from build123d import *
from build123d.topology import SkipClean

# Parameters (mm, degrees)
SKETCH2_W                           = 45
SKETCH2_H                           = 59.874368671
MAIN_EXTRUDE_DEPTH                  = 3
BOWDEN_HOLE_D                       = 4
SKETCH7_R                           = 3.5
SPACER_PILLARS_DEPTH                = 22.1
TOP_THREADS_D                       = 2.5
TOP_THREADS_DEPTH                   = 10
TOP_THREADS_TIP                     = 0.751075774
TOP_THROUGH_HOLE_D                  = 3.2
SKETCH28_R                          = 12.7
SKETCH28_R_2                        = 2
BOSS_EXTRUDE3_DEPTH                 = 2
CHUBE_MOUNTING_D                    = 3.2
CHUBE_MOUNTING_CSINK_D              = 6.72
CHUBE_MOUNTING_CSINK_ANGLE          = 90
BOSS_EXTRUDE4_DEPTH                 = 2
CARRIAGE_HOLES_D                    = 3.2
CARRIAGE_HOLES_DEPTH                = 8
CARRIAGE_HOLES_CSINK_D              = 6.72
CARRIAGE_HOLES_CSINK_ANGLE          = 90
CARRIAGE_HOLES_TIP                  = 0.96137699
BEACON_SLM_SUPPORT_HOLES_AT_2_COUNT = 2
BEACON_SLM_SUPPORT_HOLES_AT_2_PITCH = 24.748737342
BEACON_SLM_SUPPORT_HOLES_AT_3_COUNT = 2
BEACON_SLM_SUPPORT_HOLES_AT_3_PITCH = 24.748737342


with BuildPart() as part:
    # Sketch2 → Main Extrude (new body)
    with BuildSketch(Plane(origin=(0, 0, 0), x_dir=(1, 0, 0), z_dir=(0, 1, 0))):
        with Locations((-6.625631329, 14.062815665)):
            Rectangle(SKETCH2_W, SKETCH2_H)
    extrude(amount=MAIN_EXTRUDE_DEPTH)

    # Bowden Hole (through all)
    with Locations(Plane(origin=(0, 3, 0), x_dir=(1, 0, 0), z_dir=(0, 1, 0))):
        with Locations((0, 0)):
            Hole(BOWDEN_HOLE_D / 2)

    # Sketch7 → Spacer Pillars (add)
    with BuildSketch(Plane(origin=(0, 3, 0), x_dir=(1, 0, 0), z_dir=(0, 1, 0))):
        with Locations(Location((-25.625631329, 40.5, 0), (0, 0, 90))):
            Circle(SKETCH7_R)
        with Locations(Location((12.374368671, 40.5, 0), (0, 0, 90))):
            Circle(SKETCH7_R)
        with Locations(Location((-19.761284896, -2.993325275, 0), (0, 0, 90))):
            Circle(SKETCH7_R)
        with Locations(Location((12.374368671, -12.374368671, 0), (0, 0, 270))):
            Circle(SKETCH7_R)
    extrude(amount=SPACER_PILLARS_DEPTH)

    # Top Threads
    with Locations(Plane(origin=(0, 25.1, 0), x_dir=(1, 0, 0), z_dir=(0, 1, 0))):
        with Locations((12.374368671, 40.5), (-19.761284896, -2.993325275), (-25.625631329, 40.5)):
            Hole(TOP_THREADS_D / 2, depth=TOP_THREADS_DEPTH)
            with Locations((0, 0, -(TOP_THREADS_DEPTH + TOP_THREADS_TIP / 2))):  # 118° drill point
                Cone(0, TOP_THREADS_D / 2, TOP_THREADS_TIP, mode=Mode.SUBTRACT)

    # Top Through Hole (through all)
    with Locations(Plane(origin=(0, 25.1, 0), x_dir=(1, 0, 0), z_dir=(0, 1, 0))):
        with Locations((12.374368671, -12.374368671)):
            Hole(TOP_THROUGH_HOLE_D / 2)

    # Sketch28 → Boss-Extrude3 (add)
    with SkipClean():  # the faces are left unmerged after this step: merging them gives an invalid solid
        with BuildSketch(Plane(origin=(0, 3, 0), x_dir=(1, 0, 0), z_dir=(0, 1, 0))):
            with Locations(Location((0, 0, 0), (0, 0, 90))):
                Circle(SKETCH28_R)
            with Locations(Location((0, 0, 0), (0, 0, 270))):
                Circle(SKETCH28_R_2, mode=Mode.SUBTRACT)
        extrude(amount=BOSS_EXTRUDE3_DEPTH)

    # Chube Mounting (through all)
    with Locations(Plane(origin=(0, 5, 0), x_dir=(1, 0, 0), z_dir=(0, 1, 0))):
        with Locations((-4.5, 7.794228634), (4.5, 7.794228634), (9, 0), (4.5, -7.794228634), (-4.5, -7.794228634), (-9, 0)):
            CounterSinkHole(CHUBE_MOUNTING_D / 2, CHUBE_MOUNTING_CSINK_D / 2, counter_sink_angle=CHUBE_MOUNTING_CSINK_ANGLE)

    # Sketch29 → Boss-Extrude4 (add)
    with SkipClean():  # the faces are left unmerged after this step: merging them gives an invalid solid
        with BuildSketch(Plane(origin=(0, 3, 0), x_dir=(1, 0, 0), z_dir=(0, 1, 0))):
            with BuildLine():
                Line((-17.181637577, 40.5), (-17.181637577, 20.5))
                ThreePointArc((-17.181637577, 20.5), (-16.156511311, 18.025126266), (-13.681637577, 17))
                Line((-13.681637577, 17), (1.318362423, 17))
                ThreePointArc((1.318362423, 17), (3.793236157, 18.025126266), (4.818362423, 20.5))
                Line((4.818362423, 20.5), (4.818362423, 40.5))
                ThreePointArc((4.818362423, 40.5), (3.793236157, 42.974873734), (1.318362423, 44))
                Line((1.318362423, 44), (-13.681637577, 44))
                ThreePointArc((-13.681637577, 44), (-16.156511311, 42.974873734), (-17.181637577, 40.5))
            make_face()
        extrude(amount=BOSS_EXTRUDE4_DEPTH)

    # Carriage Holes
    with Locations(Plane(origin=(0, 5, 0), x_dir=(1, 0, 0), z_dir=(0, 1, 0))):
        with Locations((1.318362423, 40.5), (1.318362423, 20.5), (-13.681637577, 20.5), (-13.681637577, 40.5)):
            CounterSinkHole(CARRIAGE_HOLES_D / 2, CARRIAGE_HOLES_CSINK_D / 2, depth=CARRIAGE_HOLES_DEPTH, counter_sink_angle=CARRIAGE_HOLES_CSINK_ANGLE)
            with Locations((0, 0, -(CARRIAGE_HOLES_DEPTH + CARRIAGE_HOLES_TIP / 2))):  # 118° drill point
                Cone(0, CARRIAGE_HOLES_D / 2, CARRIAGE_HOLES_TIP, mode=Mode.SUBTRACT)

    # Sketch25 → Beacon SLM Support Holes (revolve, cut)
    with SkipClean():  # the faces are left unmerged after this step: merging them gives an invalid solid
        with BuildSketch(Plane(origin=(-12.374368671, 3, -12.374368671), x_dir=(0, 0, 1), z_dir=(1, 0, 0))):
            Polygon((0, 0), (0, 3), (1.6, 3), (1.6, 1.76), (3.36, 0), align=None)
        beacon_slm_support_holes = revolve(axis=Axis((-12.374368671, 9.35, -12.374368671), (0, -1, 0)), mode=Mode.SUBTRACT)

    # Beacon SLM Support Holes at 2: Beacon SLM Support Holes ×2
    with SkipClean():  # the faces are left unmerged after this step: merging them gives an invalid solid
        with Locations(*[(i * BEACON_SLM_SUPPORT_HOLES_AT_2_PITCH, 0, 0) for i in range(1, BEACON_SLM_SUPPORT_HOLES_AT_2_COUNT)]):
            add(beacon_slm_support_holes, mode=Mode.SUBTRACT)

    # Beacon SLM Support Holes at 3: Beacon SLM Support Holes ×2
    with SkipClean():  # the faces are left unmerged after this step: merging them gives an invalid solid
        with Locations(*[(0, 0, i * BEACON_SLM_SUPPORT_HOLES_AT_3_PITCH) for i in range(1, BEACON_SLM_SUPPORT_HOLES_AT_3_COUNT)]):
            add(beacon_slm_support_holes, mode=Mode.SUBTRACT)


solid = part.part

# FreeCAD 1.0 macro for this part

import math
import FreeCAD as App
import Part
import Sketcher
from FreeCAD import Vector
Q = App.Units.Quantity


def add_polygon(sketch, points):
    """Adds a closed chain of lines whose ends are joined by coincident constraints."""
    first, n = sketch.GeometryCount, len(points)
    for a, b in zip(points, points[1:] + points[:1]):
        sketch.addGeometry(Part.LineSegment(App.Vector(*a, 0), App.Vector(*b, 0)), False)
    for i in range(n):
        sketch.addConstraint(Sketcher.Constraint("Coincident", first + i, 2, first + (i + 1) % n, 1))

doc = App.newDocument("Part")
params = doc.addObject("Spreadsheet::Sheet", "Params")
for row, (alias, value) in enumerate([
    ("sketch1_width", "45 mm"),
    ("pad1_length", "3 mm"),
    ("sketch2_diameter", "4 mm"),
    ("hole_diameter", "4 mm"),
    ("sketch3_diameter", "7 mm"),
    ("pad2_length", "22.1 mm"),
    ("sketch4_diameter", "2.5 mm"),
    ("hole2_diameter", "2.5 mm"),
    ("hole2_depth", "10 mm"),
    ("sketch5_diameter", "3.2 mm"),
    ("hole3_diameter", "3.2 mm"),
    ("sketch6_diameter", "4 mm"),
    ("sketch6_diameter2", "25.4 mm"),
    ("pad3_length", "2 mm"),
    ("sketch7_diameter", "3.2 mm"),
    ("hole4_diameter", "3.2 mm"),
    ("hole4_csink_diameter", "6.72 mm"),
    ("sketch8_radius", "3.5 mm"),
    ("sketch8_width", "15 mm"),
    ("sketch8_height", "20 mm"),
    ("pad4_length", "2 mm"),
    ("sketch9_diameter", "3.2 mm"),
    ("hole5_diameter", "3.2 mm"),
    ("hole5_depth", "8 mm"),
    ("hole5_csink_diameter", "6.72 mm"),
    ("sketch10_width", "3 mm"),
    ("sketch10_height", "1.6 mm"),
    ("sketch10_width2", "1.24 mm"),
    ("groove_angle", "360 deg"),
    ("linearpattern_pitch", "24.748737 mm"),
    ("linearpattern2_pitch", "24.748737 mm"),
], start=1):
    params.set(f"A{row}", alias)
    params.set(f"B{row}", "=" + value)
    params.setAlias(f"B{row}", alias)

body = doc.addObject("PartDesign::Body", "Body")

sketch1 = doc.addObject("Sketcher::SketchObject", "Sketch")
body.addObject(sketch1)
sketch1.AttachmentSupport = (doc.XZ_Plane, [""])
sketch1.MapMode = "FlatFace"
add_polygon(sketch1, [(-29, -44), (-29, 16), (16, 16), (16, -44)])
sketch1.addConstraint([
    Sketcher.Constraint("Vertical", 0),
    Sketcher.Constraint("Horizontal", 1),
    Sketcher.Constraint("Vertical", 2),
    Sketcher.Constraint("Horizontal", 3),
    Sketcher.Constraint("DistanceX", 1, 1, 1, 2, Q("45 mm")),
    Sketcher.Constraint("DistanceY", 2, 2, -1, 1, Q("44 mm")),
    Sketcher.Constraint("DistanceY", 0, 1, 0, 2, Q("59.874369 mm")),
    Sketcher.Constraint("DistanceX", 0, 2, -1, 1, Q("29.125631 mm")),
])
sketch1.setExpression("Constraints[8]", "Params.sketch1_width")
pad1 = doc.addObject("PartDesign::Pad", "Pad")
body.addObject(pad1)
pad1.Profile = sketch1
pad1.setExpression("Length", "Params.pad1_length")
pad1.Reversed = True

sketch2 = doc.addObject("Sketcher::SketchObject", "Sketch001")
body.addObject(sketch2)
sketch2.AttachmentSupport = (doc.XZ_Plane, [""])
sketch2.MapMode = "FlatFace"
sketch2.AttachmentOffset = App.Placement(Vector(0, 0, -3), App.Rotation())
sketch2.addGeometry(Part.Circle(Vector(0, 0, 0), Vector(0, 0, 1), 2), False)
sketch2.addConstraint([
    Sketcher.Constraint("Coincident", 0, 3, -1, 1),
    Sketcher.Constraint("Diameter", 0, Q("4 mm")),
])
sketch2.setExpression("Constraints[1]", "Params.sketch2_diameter")
doc.recompute()
hole = doc.addObject("PartDesign::Hole", "Hole")
body.addObject(hole)
hole.Profile = sketch2
hole.ThreadType = "None"
hole.setExpression("Diameter", "Params.hole_diameter")
hole.DepthType = "ThroughAll"
hole.Reversed = True

sketch3 = doc.addObject("Sketcher::SketchObject", "Sketch002")
body.addObject(sketch3)
sketch3.AttachmentSupport = (doc.XZ_Plane, [""])
sketch3.MapMode = "FlatFace"
sketch3.AttachmentOffset = App.Placement(Vector(0, 0, -3), App.Rotation())
sketch3.addGeometry([
    Part.Circle(Vector(-25.6, -40.5, 0), Vector(0, 0, 1), 3.5),
    Part.Circle(Vector(12.4, -40.5, 0), Vector(0, 0, 1), 3.5),
    Part.Circle(Vector(-19.8, 3, 0), Vector(0, 0, 1), 3.5),
    Part.Circle(Vector(12.4, 12.4, 0), Vector(0, 0, 1), 3.5),
], False)
sketch3.addConstraint([
    Sketcher.Constraint("Equal", 0, 1),
    Sketcher.Constraint("Equal", 1, 2),
    Sketcher.Constraint("Equal", 2, 3),
    Sketcher.Constraint("Horizontal", 0, 3, 1, 3),
    Sketcher.Constraint("Vertical", 1, 3, 3, 3),
    Sketcher.Constraint("Diameter", 0, Q("7 mm")),
    Sketcher.Constraint("DistanceX", 0, 3, 1, 3, Q("38 mm")),
    Sketcher.Constraint("DistanceY", 0, 3, -1, 1, Q("40.5 mm")),
    Sketcher.Constraint("DistanceX", 0, 3, -1, 1, Q("25.625631 mm")),
    Sketcher.Constraint("DistanceY", -1, 1, 3, 3, Q("12.374369 mm")),
    Sketcher.Constraint("DistanceX", 2, 3, -1, 1, Q("19.761285 mm")),
    Sketcher.Constraint("DistanceY", -1, 1, 2, 3, Q("2.993325 mm")),
])
sketch3.setExpression("Constraints[5]", "Params.sketch3_diameter")
pad2 = doc.addObject("PartDesign::Pad", "Pad001")
body.addObject(pad2)
pad2.Profile = sketch3
pad2.setExpression("Length", "Params.pad2_length")
pad2.Reversed = True

sketch4 = doc.addObject("Sketcher::SketchObject", "Sketch003")
body.addObject(sketch4)
sketch4.AttachmentSupport = (doc.XZ_Plane, [""])
sketch4.MapMode = "FlatFace"
sketch4.AttachmentOffset = App.Placement(Vector(0, 0, -25.1), App.Rotation())
sketch4.addGeometry([
    Part.Circle(Vector(12.4, -40.5, 0), Vector(0, 0, 1), 1.2),
    Part.Circle(Vector(-19.8, 3, 0), Vector(0, 0, 1), 1.2),
    Part.Circle(Vector(-25.6, -40.5, 0), Vector(0, 0, 1), 1.2),
], False)
sketch4.addConstraint([
    Sketcher.Constraint("Equal", 0, 1),
    Sketcher.Constraint("Equal", 1, 2),
    Sketcher.Constraint("Horizontal", 0, 3, 2, 3),
    Sketcher.Constraint("Diameter", 0, Q("2.5 mm")),
    Sketcher.Constraint("DistanceX", 2, 3, 0, 3, Q("38 mm")),
    Sketcher.Constraint("DistanceY", 0, 3, -1, 1, Q("40.5 mm")),
    Sketcher.Constraint("DistanceX", -1, 1, 0, 3, Q("12.374369 mm")),
    Sketcher.Constraint("DistanceX", 1, 3, -1, 1, Q("19.761285 mm")),
    Sketcher.Constraint("DistanceY", -1, 1, 1, 3, Q("2.993325 mm")),
])
sketch4.setExpression("Constraints[3]", "Params.sketch4_diameter")
doc.recompute()
hole2 = doc.addObject("PartDesign::Hole", "Hole001")
body.addObject(hole2)
hole2.Profile = sketch4
hole2.ThreadType = "None"
hole2.setExpression("Diameter", "Params.hole2_diameter")
hole2.DepthType = "Dimension"
hole2.setExpression("Depth", "Params.hole2_depth")
hole2.DrillPoint = "Angled"
hole2.DrillPointAngle = 118
hole2.Reversed = True

sketch5 = doc.addObject("Sketcher::SketchObject", "Sketch004")
body.addObject(sketch5)
sketch5.AttachmentSupport = (doc.XZ_Plane, [""])
sketch5.MapMode = "FlatFace"
sketch5.AttachmentOffset = App.Placement(Vector(0, 0, -25.1), App.Rotation())
sketch5.addGeometry(Part.Circle(Vector(12.4, 12.4, 0), Vector(0, 0, 1), 1.6), False)
sketch5.addConstraint([
    Sketcher.Constraint("Diameter", 0, Q("3.2 mm")),
    Sketcher.Constraint("DistanceX", -1, 1, 0, 3, Q("12.374369 mm")),
    Sketcher.Constraint("DistanceY", -1, 1, 0, 3, Q("12.374369 mm")),
])
sketch5.setExpression("Constraints[0]", "Params.sketch5_diameter")
doc.recompute()
hole3 = doc.addObject("PartDesign::Hole", "Hole002")
body.addObject(hole3)
hole3.Profile = sketch5
hole3.ThreadType = "None"
hole3.setExpression("Diameter", "Params.hole3_diameter")
hole3.DepthType = "ThroughAll"
hole3.Reversed = True

sketch6 = doc.addObject("Sketcher::SketchObject", "Sketch005")
body.addObject(sketch6)
sketch6.AttachmentSupport = (doc.XZ_Plane, [""])
sketch6.MapMode = "FlatFace"
sketch6.AttachmentOffset = App.Placement(Vector(0, 0, -3), App.Rotation())
sketch6.addGeometry([
    Part.Circle(Vector(0, 0, 0), Vector(0, 0, 1), 12.7),
    Part.Circle(Vector(0, 0, 0), Vector(0, 0, 1), 2),
], False)
sketch6.addConstraint([
    Sketcher.Constraint("Coincident", 0, 3, -1, 1),
    Sketcher.Constraint("Coincident", 1, 3, -1, 1),
    Sketcher.Constraint("Diameter", 1, Q("4 mm")),
    Sketcher.Constraint("Diameter", 0, Q("25.4 mm")),
])
sketch6.setExpression("Constraints[2]", "Params.sketch6_diameter")
sketch6.setExpression("Constraints[3]", "Params.sketch6_diameter2")
pad3 = doc.addObject("PartDesign::Pad", "Pad002")
body.addObject(pad3)
pad3.Profile = sketch6
pad3.setExpression("Length", "Params.pad3_length")
pad3.Reversed = True

sketch7 = doc.addObject("Sketcher::SketchObject", "Sketch006")
body.addObject(sketch7)
sketch7.AttachmentSupport = (doc.XZ_Plane, [""])
sketch7.MapMode = "FlatFace"
sketch7.AttachmentOffset = App.Placement(Vector(0, 0, -5), App.Rotation())
sketch7.addGeometry([
    Part.Circle(Vector(-4.5, -7.8, 0), Vector(0, 0, 1), 1.6),
    Part.Circle(Vector(4.5, -7.8, 0), Vector(0, 0, 1), 1.6),
    Part.Circle(Vector(9, 0, 0), Vector(0, 0, 1), 1.6),
    Part.Circle(Vector(4.5, 7.8, 0), Vector(0, 0, 1), 1.6),
    Part.Circle(Vector(-4.5, 7.8, 0), Vector(0, 0, 1), 1.6),
    Part.Circle(Vector(-9, 0, 0), Vector(0, 0, 1), 1.6),
], False)
sketch7.addConstraint([
    Sketcher.Constraint("Equal", 0, 1),
    Sketcher.Constraint("Equal", 1, 2),
    Sketcher.Constraint("Equal", 2, 3),
    Sketcher.Constraint("Equal", 3, 4),
    Sketcher.Constraint("Equal", 4, 5),
    Sketcher.Constraint("Symmetric", 0, 3, 3, 3, -1, 1),
    Sketcher.Constraint("Symmetric", 1, 3, 4, 3, -1, 1),
    Sketcher.Constraint("Symmetric", 2, 3, 5, 3, -1, 1),
    Sketcher.Constraint("Symmetric", 0, 3, 1, 3, -2),
    Sketcher.Constraint("PointOnObject", 2, 3, -1),
    Sketcher.Constraint("Diameter", 0, Q("3.2 mm")),
    Sketcher.Constraint("DistanceX", -1, 1, 2, 3, Q("9 mm")),
    Sketcher.Constraint("DistanceX", 0, 3, 1, 3, Q("9 mm")),
    Sketcher.Constraint("DistanceY", 0, 3, -1, 1, Q("7.794229 mm")),
])
sketch7.setExpression("Constraints[10]", "Params.sketch7_diameter")
doc.recompute()
hole4 = doc.addObject("PartDesign::Hole", "Hole003")
body.addObject(hole4)
hole4.Profile = sketch7
hole4.ThreadType = "None"
hole4.setExpression("Diameter", "Params.hole4_diameter")
hole4.DepthType = "ThroughAll"
hole4.HoleCutType = "Countersink"
hole4.setExpression("HoleCutDiameter", "Params.hole4_csink_diameter")
hole4.HoleCutCountersinkAngle = 90
hole4.Reversed = True

sketch8 = doc.addObject("Sketcher::SketchObject", "Sketch007")
body.addObject(sketch8)
sketch8.AttachmentSupport = (doc.XZ_Plane, [""])
sketch8.MapMode = "FlatFace"
sketch8.AttachmentOffset = App.Placement(Vector(0, 0, -3), App.Rotation())
sketch8.addGeometry([
    Part.LineSegment(Vector(-17.2, -40.5, 0), Vector(-17.2, -20.5, 0)),
    Part.ArcOfCircle(Part.Circle(Vector(-13.7, -20.5, 0), Vector(0, 0, 1), 3.5), math.radians(90), math.radians(180)),
    Part.LineSegment(Vector(-13.7, -17, 0), Vector(1.3, -17, 0)),
    Part.ArcOfCircle(Part.Circle(Vector(1.3, -20.5, 0), Vector(0, 0, 1), 3.5), math.radians(0), math.radians(90)),
    Part.LineSegment(Vector(4.8, -20.5, 0), Vector(4.8, -40.5, 0)),
    Part.ArcOfCircle(Part.Circle(Vector(1.3, -40.5, 0), Vector(0, 0, 1), 3.5), math.radians(-90), math.radians(0)),
    Part.LineSegment(Vector(1.3, -44, 0), Vector(-13.7, -44, 0)),
    Part.ArcOfCircle(Part.Circle(Vector(-13.7, -40.5, 0), Vector(0, 0, 1), 3.5), math.radians(-180), math.radians(-90)),
], False)
sketch8.addConstraint([
    Sketcher.Constraint("Tangent", 0, 2, 1, 2),
    Sketcher.Constraint("Tangent", 1, 1, 2, 1),
    Sketcher.Constraint("Tangent", 2, 2, 3, 2),
    Sketcher.Constraint("Tangent", 3, 1, 4, 1),
    Sketcher.Constraint("Tangent", 4, 2, 5, 2),
    Sketcher.Constraint("Tangent", 5, 1, 6, 1),
    Sketcher.Constraint("Tangent", 6, 2, 7, 2),
    Sketcher.Constraint("Tangent", 7, 1, 0, 1),
    Sketcher.Constraint("Vertical", 0),
    Sketcher.Constraint("Horizontal", 2),
    Sketcher.Constraint("Vertical", 4),
    Sketcher.Constraint("Horizontal", 6),
    Sketcher.Constraint("Equal", 1, 3),
    Sketcher.Constraint("Equal", 3, 5),
    Sketcher.Constraint("Equal", 5, 7),
    Sketcher.Constraint("Radius", 1, Q("3.5 mm")),
    Sketcher.Constraint("DistanceX", 2, 1, 2, 2, Q("15 mm")),
    Sketcher.Constraint("DistanceY", 0, 1, 0, 2, Q("20 mm")),
    Sketcher.Constraint("DistanceY", 1, 1, -1, 1, Q("17 mm")),
    Sketcher.Constraint("DistanceX", 1, 3, -1, 1, Q("13.681638 mm")),
])
sketch8.setExpression("Constraints[15]", "Params.sketch8_radius")
sketch8.setExpression("Constraints[16]", "Params.sketch8_width")
sketch8.setExpression("Constraints[17]", "Params.sketch8_height")
pad4 = doc.addObject("PartDesign::Pad", "Pad003")
body.addObject(pad4)
pad4.Profile = sketch8
pad4.setExpression("Length", "Params.pad4_length")
pad4.Reversed = True

sketch9 = doc.addObject("Sketcher::SketchObject", "Sketch008")
body.addObject(sketch9)
sketch9.AttachmentSupport = (doc.XZ_Plane, [""])
sketch9.MapMode = "FlatFace"
sketch9.AttachmentOffset = App.Placement(Vector(0, 0, -5), App.Rotation())
sketch9.addGeometry([
    Part.Circle(Vector(1.3, -40.5, 0), Vector(0, 0, 1), 1.6),
    Part.Circle(Vector(1.3, -20.5, 0), Vector(0, 0, 1), 1.6),
    Part.Circle(Vector(-13.7, -20.5, 0), Vector(0, 0, 1), 1.6),
    Part.Circle(Vector(-13.7, -40.5, 0), Vector(0, 0, 1), 1.6),
], False)
sketch9.addConstraint([
    Sketcher.Constraint("Equal", 0, 1),
    Sketcher.Constraint("Equal", 1, 2),
    Sketcher.Constraint("Equal", 2, 3),
    Sketcher.Constraint("Horizontal", 1, 3, 2, 3),
    Sketcher.Constraint("Horizontal", 0, 3, 3, 3),
    Sketcher.Constraint("Vertical", 0, 3, 1, 3),
    Sketcher.Constraint("Vertical", 2, 3, 3, 3),
    Sketcher.Constraint("Diameter", 0, Q("3.2 mm")),
    Sketcher.Constraint("DistanceY", 0, 3, 1, 3, Q("20 mm")),
    Sketcher.Constraint("DistanceX", 2, 3, 1, 3, Q("15 mm")),
    Sketcher.Constraint("DistanceY", 0, 3, -1, 1, Q("40.5 mm")),
    Sketcher.Constraint("DistanceX", -1, 1, 0, 3, Q("1.318362 mm")),
])
sketch9.setExpression("Constraints[7]", "Params.sketch9_diameter")
doc.recompute()
hole5 = doc.addObject("PartDesign::Hole", "Hole004")
body.addObject(hole5)
hole5.Profile = sketch9
hole5.ThreadType = "None"
hole5.setExpression("Diameter", "Params.hole5_diameter")
hole5.DepthType = "Dimension"
hole5.setExpression("Depth", "Params.hole5_depth")
hole5.DrillPoint = "Angled"
hole5.DrillPointAngle = 118
hole5.HoleCutType = "Countersink"
hole5.setExpression("HoleCutDiameter", "Params.hole5_csink_diameter")
hole5.HoleCutCountersinkAngle = 90
hole5.Reversed = True

sketch10 = doc.addObject("Sketcher::SketchObject", "Sketch009")
body.addObject(sketch10)
sketch10.AttachmentSupport = (doc.YZ_Plane, [""])
sketch10.MapMode = "FlatFace"
sketch10.AttachmentOffset = App.Placement(Vector(0, 0, -12.374369), App.Rotation())
add_polygon(sketch10, [(0, -12.4), (3, -12.4), (3, -9), (1.2, -10.8), (0, -10.8)])
sketch10.addGeometry(Part.LineSegment(Vector(3, -12.4, 0), Vector(0, -12.4, 0)), True)
sketch10.addConstraint([
    Sketcher.Constraint("Horizontal", 0),
    Sketcher.Constraint("Vertical", 1),
    Sketcher.Constraint("Horizontal", 3),
    Sketcher.Constraint("Vertical", 4),
    Sketcher.Constraint("Horizontal", 5),
    Sketcher.Constraint("Coincident", 5, 1, 0, 2),
    Sketcher.Constraint("PointOnObject", 3, 2, -2),
    Sketcher.Constraint("PointOnObject", 5, 2, -2),
    Sketcher.Constraint("DistanceX", 0, 1, 0, 2, Q("3 mm")),
    Sketcher.Constraint("Angle", 2, Q("-135 deg")),
    Sketcher.Constraint("DistanceY", 4, 2, 4, 1, Q("1.6 mm")),
    Sketcher.Constraint("DistanceX", 3, 2, 3, 1, Q("1.24 mm")),
    Sketcher.Constraint("DistanceY", 0, 2, -1, 1, Q("12.374369 mm")),
])
sketch10.setExpression("Constraints[13]", "Params.sketch10_width")
sketch10.setExpression("Constraints[15]", "Params.sketch10_height")
sketch10.setExpression("Constraints[16]", "Params.sketch10_width2")
groove = doc.addObject("PartDesign::Groove", "Groove")
body.addObject(groove)
groove.Profile = sketch10
groove.ReferenceAxis = (sketch10, ["Axis0"])
groove.setExpression("Angle", "Params.groove_angle")
doc.recompute()

linearpattern = doc.addObject("PartDesign::LinearPattern", "LinearPattern")
body.addObject(linearpattern)
linearpattern.Originals = [groove]
linearpattern.Direction = (doc.X_Axis, [""])
linearpattern.Mode = "offset"
linearpattern.setExpression("Offset", "Params.linearpattern_pitch")
linearpattern.Occurrences = 2
body.Tip = linearpattern
doc.recompute()

linearpattern2 = doc.addObject("PartDesign::LinearPattern", "LinearPattern001")
body.addObject(linearpattern2)
linearpattern2.Originals = [groove]
linearpattern2.Direction = (doc.Z_Axis, [""])
linearpattern2.Mode = "offset"
linearpattern2.setExpression("Offset", "Params.linearpattern2_pitch")
linearpattern2.Occurrences = 2
body.Tip = linearpattern2

doc.recompute()
